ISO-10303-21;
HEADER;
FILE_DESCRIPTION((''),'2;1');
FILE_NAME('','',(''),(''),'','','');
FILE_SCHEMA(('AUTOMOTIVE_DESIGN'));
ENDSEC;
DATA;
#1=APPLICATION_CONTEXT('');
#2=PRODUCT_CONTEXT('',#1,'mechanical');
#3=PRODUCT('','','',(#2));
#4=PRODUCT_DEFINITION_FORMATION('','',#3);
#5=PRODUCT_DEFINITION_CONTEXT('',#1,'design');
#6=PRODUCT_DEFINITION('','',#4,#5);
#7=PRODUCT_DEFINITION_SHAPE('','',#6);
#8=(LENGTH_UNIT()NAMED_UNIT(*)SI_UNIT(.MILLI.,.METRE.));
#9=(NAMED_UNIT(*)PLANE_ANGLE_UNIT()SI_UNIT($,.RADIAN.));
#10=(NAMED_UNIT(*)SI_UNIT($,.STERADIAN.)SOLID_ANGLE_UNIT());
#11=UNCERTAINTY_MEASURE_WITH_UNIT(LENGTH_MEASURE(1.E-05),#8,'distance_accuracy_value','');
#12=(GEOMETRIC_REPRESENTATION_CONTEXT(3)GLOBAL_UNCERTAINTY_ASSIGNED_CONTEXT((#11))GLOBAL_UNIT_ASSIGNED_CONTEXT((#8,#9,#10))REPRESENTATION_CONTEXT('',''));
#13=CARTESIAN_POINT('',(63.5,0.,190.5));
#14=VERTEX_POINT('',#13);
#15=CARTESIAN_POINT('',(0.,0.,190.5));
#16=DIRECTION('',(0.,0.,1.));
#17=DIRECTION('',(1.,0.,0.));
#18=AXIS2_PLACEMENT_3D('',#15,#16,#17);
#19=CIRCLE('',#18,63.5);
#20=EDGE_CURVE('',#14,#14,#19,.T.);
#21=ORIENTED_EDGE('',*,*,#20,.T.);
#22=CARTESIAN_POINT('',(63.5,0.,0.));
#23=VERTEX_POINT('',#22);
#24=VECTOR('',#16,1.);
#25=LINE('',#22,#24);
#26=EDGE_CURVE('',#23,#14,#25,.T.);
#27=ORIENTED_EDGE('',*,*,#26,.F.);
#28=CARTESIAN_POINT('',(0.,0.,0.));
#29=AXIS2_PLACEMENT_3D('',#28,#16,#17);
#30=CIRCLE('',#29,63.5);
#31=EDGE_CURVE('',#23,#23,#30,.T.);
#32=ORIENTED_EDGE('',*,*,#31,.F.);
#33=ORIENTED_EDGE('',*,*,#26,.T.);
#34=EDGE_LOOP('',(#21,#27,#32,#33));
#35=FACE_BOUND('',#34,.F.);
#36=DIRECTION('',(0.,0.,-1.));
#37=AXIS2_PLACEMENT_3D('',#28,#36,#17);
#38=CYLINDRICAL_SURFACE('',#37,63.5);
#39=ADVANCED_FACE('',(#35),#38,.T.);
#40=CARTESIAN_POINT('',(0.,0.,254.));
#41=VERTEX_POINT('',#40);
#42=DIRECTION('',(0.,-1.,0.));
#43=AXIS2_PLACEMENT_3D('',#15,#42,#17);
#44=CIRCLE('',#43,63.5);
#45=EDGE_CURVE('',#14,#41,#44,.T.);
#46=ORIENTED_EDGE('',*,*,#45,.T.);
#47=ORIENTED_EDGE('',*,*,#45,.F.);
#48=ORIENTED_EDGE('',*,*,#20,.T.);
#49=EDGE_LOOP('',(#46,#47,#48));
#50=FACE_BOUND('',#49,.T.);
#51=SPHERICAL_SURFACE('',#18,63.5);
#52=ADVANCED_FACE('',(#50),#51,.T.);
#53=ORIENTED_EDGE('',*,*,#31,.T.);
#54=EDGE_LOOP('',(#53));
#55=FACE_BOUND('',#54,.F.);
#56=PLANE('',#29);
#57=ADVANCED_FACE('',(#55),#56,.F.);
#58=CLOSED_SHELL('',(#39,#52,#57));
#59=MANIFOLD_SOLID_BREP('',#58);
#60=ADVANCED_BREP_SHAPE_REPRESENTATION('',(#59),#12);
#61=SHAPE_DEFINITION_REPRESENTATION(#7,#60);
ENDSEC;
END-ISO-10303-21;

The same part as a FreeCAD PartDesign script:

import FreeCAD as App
import Part
import Sketcher
from FreeCAD import Vector
Q = App.Units.Quantity


def edges_at(feature, points):
    """Names of the edges that pass closest to the given points."""
    edges = feature.Shape.Edges
    near = lambda p: min(range(len(edges)), key=lambda i: edges[i].distToShape(Part.Vertex(*p))[0])
    return sorted({f"Edge{near(p) + 1}" for p in points})

doc = App.newDocument("Part")
body = doc.addObject("PartDesign::Body", "Body")

# Sketch on XY plane
sketch1 = body.newObject("Sketcher::SketchObject", "Sketch")
sketch1.AttachmentSupport = (doc.getObject("XY_Plane"), [""])
sketch1.MapMode = "FlatFace"
sketch1.addGeometry(Part.Circle(Vector(0, 0, 0), Vector(0, 0, 1), 64), False)
sketch1.addConstraint(Sketcher.Constraint("Coincident", 0, 3, -1, 1))
sketch1.addConstraint(Sketcher.Constraint("Diameter", 0, Q("5 in")))
pad1 = body.newObject("PartDesign::Pad", "Pad")
pad1.Profile = sketch1
pad1.Length = Q("10 in")
doc.recompute()

fillet = body.newObject("PartDesign::Fillet", "Fillet")
fillet.Base = (pad1, edges_at(pad1, [(-63.5, 0, 254)]))
fillet.Radius = Q("2.5 in")

doc.recompute()
